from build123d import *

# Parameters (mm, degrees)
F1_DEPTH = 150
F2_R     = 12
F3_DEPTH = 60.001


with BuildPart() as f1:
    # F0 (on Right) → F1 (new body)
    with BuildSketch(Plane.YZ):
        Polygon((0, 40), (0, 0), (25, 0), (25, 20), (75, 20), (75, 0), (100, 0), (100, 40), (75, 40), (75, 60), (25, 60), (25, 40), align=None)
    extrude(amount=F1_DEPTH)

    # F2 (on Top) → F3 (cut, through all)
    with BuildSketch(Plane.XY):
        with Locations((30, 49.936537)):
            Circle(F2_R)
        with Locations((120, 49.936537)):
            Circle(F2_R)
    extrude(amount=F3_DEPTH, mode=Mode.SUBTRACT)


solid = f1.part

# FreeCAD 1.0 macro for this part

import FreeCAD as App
import Part
import Sketcher

V = App.Vector

doc = App.newDocument("Part")
params = doc.addObject("Spreadsheet::Sheet", "Params")
for row, (alias, value) in enumerate([
    ("sketch1_width", "25 mm"),
    ("sketch1_width2", "50 mm"),
    ("sketch1_height", "40 mm"),
    ("sketch1_height2", "20 mm"),
    ("pad1_length", "150 mm"),
    ("sketch2_diameter", "24 mm"),
], start=1):
    params.set(f"A{row}", alias)
    params.set(f"B{row}", "=" + value)
    params.setAlias(f"B{row}", alias)

body = doc.addObject("PartDesign::Body", "Body")

# Sketch on YZ plane
sketch1 = body.newObject("Sketcher::SketchObject", "Sketch")
sketch1.AttachmentSupport = (doc.getObject("YZ_Plane"), [""])
sketch1.MapMode = "FlatFace"
sketch1.addGeometry([
    Part.LineSegment(V(0, 40, 0), V(0, 0, 0)),  # 0
    Part.LineSegment(V(0, 0, 0), V(25, 0, 0)),  # 1
    Part.LineSegment(V(25, 0, 0), V(25, 20, 0)),  # 2
    Part.LineSegment(V(25, 20, 0), V(75, 20, 0)),  # 3
    Part.LineSegment(V(75, 20, 0), V(75, 0, 0)),  # 4
    Part.LineSegment(V(75, 0, 0), V(100, 0, 0)),  # 5
    Part.LineSegment(V(100, 0, 0), V(100, 40, 0)),  # 6
    Part.LineSegment(V(100, 40, 0), V(75, 40, 0)),  # 7
    Part.LineSegment(V(75, 40, 0), V(75, 60, 0)),  # 8
    Part.LineSegment(V(75, 60, 0), V(25, 60, 0)),  # 9
    Part.LineSegment(V(25, 60, 0), V(25, 40, 0)),  # 10
    Part.LineSegment(V(25, 40, 0), V(0, 40, 0)),  # 11
], False)
sketch1.addConstraint([
    Sketcher.Constraint("Coincident", 0, 2, 1, 1),
    Sketcher.Constraint("Coincident", 1, 2, 2, 1),
    Sketcher.Constraint("Coincident", 2, 2, 3, 1),
    Sketcher.Constraint("Coincident", 3, 2, 4, 1),
    Sketcher.Constraint("Coincident", 4, 2, 5, 1),
    Sketcher.Constraint("Coincident", 5, 2, 6, 1),
    Sketcher.Constraint("Coincident", 6, 2, 7, 1),
    Sketcher.Constraint("Coincident", 7, 2, 8, 1),
    Sketcher.Constraint("Coincident", 8, 2, 9, 1),
    Sketcher.Constraint("Coincident", 9, 2, 10, 1),
    Sketcher.Constraint("Coincident", 10, 2, 11, 1),
    Sketcher.Constraint("Coincident", 11, 2, 0, 1),
    Sketcher.Constraint("Vertical", 0),
    Sketcher.Constraint("Horizontal", 1),
    Sketcher.Constraint("Vertical", 2),
    Sketcher.Constraint("Horizontal", 3),
    Sketcher.Constraint("Vertical", 4),
    Sketcher.Constraint("Horizontal", 5),
    Sketcher.Constraint("Vertical", 6),
    Sketcher.Constraint("Horizontal", 7),
    Sketcher.Constraint("Vertical", 8),
    Sketcher.Constraint("Horizontal", 9),
    Sketcher.Constraint("Vertical", 10),
    Sketcher.Constraint("Horizontal", 11),
    Sketcher.Constraint("Coincident", 0, 2, -1, 1),
    Sketcher.Constraint("PointOnObject", 4, 2, -1),
    Sketcher.Constraint("Horizontal", 7, 2, 10, 2),
    Sketcher.Constraint("Vertical", 4, 2, 7, 2),
    Sketcher.Constraint("Vertical", 2, 2, 9, 2),
    Sketcher.Constraint("Equal", 1, 5),
    Sketcher.Constraint("Equal", 4, 8),
    Sketcher.Constraint("DistanceX", 1, 1, 1, 2, 25.0),
    Sketcher.Constraint("DistanceX", 3, 1, 3, 2, 50.0),
    Sketcher.Constraint("DistanceY", 0, 2, 0, 1, 40.0),
    Sketcher.Constraint("DistanceY", 2, 1, 2, 2, 20.0),
])
sketch1.setExpression("Constraints[31]", "Params.sketch1_width")
sketch1.setExpression("Constraints[32]", "Params.sketch1_width2")
sketch1.setExpression("Constraints[33]", "Params.sketch1_height")
sketch1.setExpression("Constraints[34]", "Params.sketch1_height2")
pad1 = body.newObject("PartDesign::Pad", "Pad")
pad1.Profile = sketch1
pad1.setExpression("Length", "Params.pad1_length")

# Sketch on XY plane
sketch2 = body.newObject("Sketcher::SketchObject", "Sketch001")
sketch2.AttachmentSupport = (doc.getObject("XY_Plane"), [""])
sketch2.MapMode = "FlatFace"
sketch2.addGeometry([
    Part.Circle(V(30, 50, 0), V(0, 0, 1), 12),
    Part.Circle(V(120, 50, 0), V(0, 0, 1), 12),
], False)
sketch2.addConstraint([
    Sketcher.Constraint("Equal", 0, 1),
    Sketcher.Constraint("Horizontal", 0, 3, 1, 3),
    Sketcher.Constraint("Diameter", 0, 24.0),
    Sketcher.Constraint("DistanceX", -1, 1, 0, 3, 30.0),
    Sketcher.Constraint("DistanceX", -1, 1, 1, 3, 120.0),
    Sketcher.Constraint("DistanceY", -1, 1, 0, 3, 49.936537),
])
sketch2.setExpression("Constraints[2]", "Params.sketch2_diameter")
pocket1 = body.newObject("PartDesign::Pocket", "Pocket")
pocket1.Profile = sketch2
pocket1.Type = "ThroughAll"
pocket1.Reversed = True

doc.recompute()
